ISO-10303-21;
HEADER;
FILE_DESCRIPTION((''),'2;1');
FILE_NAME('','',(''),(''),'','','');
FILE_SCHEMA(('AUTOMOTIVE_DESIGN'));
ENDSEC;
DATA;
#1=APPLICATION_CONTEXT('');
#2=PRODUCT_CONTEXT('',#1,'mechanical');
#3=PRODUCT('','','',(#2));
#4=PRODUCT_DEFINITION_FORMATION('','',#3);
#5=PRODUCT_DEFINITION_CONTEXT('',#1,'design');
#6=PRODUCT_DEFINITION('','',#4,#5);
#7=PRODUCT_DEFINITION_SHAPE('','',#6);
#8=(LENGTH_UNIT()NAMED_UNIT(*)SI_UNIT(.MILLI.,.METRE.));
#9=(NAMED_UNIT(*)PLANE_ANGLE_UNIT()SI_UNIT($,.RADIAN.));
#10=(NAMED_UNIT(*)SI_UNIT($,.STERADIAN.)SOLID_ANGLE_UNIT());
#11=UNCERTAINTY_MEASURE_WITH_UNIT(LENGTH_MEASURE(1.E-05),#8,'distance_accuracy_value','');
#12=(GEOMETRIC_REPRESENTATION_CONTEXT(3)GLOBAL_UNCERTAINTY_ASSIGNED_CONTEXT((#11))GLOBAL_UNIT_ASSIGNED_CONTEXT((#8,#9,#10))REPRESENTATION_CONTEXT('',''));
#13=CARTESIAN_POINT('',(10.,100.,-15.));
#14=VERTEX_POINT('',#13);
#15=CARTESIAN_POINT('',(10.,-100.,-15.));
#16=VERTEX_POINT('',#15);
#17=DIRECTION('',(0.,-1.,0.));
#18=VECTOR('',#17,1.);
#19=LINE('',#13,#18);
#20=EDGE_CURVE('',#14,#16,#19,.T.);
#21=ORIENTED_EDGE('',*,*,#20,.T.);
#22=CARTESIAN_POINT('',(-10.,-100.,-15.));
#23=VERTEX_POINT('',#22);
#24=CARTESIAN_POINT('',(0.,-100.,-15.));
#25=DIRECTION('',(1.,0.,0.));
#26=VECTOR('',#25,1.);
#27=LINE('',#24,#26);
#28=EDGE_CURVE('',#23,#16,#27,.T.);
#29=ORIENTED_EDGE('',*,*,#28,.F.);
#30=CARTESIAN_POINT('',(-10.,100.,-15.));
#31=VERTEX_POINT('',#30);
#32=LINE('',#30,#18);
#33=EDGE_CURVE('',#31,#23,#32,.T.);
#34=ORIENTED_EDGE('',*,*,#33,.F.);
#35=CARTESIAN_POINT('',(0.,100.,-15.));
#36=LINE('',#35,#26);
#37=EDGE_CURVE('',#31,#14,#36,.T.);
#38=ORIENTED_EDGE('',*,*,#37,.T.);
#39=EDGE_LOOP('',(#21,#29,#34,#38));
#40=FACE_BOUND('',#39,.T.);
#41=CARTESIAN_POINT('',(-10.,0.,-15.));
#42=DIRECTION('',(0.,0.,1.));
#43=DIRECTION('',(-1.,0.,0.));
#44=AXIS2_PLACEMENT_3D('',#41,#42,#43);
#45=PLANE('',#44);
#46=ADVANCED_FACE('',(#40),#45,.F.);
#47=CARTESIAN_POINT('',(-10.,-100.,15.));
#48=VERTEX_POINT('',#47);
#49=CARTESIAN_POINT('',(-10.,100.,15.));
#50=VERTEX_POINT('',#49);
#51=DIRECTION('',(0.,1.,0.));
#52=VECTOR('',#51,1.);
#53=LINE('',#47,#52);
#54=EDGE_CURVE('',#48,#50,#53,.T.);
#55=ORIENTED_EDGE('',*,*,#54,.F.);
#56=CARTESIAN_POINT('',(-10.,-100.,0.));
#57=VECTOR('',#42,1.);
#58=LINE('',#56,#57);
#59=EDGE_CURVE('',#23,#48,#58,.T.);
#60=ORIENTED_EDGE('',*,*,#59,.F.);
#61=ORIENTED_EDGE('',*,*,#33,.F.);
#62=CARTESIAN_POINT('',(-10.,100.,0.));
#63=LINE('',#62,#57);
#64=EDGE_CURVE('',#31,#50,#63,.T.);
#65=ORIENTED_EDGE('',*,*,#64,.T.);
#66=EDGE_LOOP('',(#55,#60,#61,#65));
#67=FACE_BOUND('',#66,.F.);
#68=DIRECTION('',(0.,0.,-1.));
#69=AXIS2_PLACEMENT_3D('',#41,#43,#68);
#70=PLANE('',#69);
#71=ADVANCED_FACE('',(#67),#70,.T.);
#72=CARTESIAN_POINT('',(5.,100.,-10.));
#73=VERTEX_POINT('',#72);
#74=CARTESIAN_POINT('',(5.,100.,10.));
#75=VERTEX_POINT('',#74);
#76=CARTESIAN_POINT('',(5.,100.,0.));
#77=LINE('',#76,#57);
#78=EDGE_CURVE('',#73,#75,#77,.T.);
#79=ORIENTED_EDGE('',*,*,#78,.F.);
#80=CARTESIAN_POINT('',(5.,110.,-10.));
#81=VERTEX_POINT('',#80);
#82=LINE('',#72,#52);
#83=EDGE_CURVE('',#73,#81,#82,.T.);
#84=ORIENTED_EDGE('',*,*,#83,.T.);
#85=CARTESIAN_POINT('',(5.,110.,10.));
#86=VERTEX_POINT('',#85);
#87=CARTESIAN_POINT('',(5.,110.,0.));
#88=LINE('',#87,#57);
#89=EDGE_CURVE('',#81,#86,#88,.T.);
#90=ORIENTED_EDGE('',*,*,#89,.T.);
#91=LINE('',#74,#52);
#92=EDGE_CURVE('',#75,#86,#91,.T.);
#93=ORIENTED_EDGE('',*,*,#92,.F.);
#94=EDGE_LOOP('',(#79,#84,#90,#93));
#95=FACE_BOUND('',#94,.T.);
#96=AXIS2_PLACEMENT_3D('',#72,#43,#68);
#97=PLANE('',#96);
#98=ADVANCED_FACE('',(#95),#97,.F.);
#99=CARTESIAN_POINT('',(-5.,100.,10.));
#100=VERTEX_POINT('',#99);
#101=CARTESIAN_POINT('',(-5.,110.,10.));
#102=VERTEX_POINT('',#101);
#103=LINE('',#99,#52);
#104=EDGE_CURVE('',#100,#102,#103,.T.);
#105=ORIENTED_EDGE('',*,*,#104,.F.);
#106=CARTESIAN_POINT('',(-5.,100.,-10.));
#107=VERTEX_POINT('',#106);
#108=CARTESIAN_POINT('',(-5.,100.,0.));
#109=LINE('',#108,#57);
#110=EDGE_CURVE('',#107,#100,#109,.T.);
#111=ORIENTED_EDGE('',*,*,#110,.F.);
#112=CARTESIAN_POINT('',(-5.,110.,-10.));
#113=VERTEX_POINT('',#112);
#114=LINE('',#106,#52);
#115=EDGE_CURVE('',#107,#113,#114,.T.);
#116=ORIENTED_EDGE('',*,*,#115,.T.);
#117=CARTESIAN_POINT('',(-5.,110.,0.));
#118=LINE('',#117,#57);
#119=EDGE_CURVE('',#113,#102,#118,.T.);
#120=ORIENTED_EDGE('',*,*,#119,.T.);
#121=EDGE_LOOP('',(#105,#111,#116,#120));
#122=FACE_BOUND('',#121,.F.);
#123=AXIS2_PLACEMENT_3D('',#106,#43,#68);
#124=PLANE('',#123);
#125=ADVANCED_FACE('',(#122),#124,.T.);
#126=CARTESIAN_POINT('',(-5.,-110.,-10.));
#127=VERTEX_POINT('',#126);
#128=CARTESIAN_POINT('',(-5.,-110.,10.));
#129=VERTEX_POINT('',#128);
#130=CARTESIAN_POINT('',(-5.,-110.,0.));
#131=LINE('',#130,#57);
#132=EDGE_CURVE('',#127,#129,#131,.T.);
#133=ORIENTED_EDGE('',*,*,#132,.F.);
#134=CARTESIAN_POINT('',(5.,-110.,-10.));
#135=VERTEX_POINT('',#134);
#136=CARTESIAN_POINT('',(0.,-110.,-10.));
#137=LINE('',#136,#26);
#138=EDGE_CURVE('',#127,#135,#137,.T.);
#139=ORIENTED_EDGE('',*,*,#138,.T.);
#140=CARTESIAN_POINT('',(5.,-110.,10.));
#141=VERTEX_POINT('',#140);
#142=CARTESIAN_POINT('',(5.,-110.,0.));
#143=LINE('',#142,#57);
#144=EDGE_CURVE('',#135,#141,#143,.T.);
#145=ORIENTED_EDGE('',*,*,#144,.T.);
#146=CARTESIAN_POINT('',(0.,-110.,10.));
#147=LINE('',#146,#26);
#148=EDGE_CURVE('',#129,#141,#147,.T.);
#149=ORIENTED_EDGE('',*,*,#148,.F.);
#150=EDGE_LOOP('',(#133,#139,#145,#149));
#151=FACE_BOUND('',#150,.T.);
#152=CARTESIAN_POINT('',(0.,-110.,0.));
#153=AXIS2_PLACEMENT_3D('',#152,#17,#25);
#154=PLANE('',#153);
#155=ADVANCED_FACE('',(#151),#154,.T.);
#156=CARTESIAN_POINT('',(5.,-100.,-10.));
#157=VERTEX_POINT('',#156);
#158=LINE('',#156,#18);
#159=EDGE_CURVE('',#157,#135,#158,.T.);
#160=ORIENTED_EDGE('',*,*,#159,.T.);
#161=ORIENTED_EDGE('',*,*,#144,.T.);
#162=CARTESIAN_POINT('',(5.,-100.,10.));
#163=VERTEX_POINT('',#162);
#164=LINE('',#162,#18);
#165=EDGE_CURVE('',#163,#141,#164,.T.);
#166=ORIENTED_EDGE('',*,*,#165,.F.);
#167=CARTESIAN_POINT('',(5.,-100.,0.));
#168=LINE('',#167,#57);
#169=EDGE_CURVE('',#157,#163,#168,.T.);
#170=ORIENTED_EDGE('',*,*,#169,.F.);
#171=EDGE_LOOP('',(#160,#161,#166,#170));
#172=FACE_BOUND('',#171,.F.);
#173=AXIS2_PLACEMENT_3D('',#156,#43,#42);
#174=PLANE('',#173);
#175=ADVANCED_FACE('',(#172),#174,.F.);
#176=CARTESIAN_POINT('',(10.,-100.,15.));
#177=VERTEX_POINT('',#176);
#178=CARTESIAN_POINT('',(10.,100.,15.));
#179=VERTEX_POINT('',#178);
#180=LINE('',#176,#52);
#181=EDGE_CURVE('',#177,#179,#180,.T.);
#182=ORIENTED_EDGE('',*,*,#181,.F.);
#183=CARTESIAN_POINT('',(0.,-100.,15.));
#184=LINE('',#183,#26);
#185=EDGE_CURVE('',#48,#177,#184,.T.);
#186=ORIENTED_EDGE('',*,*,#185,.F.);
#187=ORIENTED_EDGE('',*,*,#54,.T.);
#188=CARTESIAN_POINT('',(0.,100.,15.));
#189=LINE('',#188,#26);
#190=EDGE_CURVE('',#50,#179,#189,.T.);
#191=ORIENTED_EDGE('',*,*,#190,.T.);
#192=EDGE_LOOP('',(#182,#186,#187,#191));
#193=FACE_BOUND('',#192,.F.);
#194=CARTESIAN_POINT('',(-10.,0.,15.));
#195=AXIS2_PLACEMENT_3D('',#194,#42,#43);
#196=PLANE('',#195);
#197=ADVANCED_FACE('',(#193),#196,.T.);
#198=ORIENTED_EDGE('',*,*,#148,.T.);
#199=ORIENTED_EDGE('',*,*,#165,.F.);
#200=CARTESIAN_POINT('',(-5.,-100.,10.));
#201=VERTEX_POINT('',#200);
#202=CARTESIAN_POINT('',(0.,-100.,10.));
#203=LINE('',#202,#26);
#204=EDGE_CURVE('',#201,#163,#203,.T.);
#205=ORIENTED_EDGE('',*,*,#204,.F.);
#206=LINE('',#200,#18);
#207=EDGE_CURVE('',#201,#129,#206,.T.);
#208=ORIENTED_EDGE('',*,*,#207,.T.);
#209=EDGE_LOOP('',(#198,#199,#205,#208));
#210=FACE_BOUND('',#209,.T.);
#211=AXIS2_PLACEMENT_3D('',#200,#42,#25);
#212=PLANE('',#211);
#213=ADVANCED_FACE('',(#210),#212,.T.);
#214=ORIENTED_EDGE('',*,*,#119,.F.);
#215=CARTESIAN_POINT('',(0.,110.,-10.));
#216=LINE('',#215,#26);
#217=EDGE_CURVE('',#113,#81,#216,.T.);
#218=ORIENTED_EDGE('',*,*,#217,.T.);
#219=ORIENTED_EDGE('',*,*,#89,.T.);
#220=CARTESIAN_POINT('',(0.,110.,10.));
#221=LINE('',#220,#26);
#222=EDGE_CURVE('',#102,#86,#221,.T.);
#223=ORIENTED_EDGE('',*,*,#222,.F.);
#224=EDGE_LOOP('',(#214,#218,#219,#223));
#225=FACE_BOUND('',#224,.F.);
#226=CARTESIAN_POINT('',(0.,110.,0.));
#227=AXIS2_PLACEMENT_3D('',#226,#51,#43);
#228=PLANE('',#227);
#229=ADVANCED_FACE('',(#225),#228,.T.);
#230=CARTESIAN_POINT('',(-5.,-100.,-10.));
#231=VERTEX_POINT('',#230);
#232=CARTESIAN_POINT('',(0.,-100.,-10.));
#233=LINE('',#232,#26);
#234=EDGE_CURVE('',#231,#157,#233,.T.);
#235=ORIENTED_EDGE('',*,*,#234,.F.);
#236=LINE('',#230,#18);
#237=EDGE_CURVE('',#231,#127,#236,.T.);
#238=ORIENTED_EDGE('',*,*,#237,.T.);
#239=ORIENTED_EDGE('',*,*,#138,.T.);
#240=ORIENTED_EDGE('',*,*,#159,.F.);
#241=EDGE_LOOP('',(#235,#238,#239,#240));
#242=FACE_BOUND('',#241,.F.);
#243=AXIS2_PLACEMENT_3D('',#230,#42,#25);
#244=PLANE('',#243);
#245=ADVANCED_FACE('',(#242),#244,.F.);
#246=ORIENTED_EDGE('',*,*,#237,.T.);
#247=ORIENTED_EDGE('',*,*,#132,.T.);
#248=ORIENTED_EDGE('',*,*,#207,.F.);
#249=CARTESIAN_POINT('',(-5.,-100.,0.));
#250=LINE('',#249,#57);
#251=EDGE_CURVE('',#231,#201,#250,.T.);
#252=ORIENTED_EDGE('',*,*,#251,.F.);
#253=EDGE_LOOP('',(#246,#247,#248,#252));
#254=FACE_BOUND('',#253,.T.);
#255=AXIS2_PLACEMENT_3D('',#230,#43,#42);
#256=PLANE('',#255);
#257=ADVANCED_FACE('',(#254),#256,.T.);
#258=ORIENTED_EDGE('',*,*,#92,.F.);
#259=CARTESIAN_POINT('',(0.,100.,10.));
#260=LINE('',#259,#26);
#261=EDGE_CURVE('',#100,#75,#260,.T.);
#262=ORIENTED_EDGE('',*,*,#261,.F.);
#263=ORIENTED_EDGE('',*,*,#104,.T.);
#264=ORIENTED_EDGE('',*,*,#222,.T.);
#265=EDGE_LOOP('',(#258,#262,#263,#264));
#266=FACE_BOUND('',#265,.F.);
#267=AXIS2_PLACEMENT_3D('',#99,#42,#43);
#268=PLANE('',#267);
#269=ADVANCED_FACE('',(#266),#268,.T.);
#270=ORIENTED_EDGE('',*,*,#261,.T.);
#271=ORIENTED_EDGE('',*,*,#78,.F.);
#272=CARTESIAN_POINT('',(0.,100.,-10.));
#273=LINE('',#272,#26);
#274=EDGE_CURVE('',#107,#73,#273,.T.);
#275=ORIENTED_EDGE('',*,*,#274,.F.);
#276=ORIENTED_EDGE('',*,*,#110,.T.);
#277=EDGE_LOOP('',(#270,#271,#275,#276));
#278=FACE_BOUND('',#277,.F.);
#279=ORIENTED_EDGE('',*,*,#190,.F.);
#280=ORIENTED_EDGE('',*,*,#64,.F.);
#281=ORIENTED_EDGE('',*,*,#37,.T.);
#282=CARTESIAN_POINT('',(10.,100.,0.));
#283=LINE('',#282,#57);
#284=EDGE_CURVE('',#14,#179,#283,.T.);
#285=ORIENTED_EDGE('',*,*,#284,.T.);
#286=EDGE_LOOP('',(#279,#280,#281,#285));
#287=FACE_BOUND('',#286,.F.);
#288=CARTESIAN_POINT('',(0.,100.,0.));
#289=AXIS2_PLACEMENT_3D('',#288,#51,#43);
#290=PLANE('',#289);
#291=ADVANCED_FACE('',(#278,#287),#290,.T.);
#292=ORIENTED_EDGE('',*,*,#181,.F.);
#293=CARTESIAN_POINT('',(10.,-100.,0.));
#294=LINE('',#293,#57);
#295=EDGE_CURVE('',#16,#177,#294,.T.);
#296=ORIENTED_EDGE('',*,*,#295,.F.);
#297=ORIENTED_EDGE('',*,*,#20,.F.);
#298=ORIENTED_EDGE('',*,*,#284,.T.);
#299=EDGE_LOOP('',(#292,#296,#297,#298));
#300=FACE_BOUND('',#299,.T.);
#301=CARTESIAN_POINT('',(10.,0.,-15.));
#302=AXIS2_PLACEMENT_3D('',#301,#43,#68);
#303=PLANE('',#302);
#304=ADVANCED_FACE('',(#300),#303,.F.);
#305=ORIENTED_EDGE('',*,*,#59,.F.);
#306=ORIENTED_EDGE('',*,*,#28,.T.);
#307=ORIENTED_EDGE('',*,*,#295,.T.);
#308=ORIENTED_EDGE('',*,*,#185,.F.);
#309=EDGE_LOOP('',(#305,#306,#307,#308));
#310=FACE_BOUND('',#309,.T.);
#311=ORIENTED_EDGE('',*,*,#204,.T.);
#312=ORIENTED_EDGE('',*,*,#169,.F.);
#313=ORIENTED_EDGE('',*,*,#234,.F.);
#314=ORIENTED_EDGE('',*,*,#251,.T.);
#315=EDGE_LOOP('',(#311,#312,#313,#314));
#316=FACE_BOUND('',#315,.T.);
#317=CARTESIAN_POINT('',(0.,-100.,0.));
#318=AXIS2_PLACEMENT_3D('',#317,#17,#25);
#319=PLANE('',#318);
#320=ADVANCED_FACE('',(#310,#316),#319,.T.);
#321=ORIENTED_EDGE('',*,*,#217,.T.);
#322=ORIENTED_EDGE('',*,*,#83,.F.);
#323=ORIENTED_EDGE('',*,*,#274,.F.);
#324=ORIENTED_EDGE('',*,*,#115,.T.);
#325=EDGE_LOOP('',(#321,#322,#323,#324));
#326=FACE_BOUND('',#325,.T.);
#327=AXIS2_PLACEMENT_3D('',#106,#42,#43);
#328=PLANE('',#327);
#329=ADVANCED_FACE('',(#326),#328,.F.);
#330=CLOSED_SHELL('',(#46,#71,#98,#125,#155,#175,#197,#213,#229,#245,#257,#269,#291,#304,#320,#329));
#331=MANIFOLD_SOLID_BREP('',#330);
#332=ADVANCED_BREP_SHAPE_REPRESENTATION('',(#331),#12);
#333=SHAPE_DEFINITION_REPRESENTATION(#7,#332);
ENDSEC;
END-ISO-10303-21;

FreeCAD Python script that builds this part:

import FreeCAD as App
import Part
import Sketcher

V = App.Vector


def add_polygon(sketch, points):
    """Adds a closed chain of lines whose ends are joined by coincident constraints."""
    first, n = sketch.GeometryCount, len(points)
    for a, b in zip(points, points[1:] + points[:1]):
        sketch.addGeometry(Part.LineSegment(App.Vector(*a, 0), App.Vector(*b, 0)), False)
    for i in range(n):
        sketch.addConstraint(Sketcher.Constraint("Coincident", first + i, 2, first + (i + 1) % n, 1))

doc = App.newDocument("Part")
body = doc.addObject("PartDesign::Body", "Body")

sketch1 = body.newObject("Sketcher::SketchObject", "Sketch")
sketch1.AttachmentSupport = (doc.getObject("XZ_Plane"), [""])
sketch1.MapMode = "FlatFace"
add_polygon(sketch1, [(-10, 15), (-10, -15), (10, -15), (10, 15)])
sketch1.addConstraint(Sketcher.Constraint("Vertical", 0))
sketch1.addConstraint(Sketcher.Constraint("Horizontal", 1))
sketch1.addConstraint(Sketcher.Constraint("Vertical", 2))
sketch1.addConstraint(Sketcher.Constraint("Horizontal", 3))
sketch1.addConstraint(Sketcher.Constraint("Symmetric", 0, 2, 2, 2, -1, 1))
sketch1.addConstraint(Sketcher.Constraint("DistanceX", 1, 1, 1, 2, 20.0))
sketch1.addConstraint(Sketcher.Constraint("DistanceY", 0, 2, 0, 1, 30.0))
pad1 = body.newObject("PartDesign::Pad", "Pad")
pad1.Profile = sketch1
pad1.Length = 100

sketch2 = body.newObject("Sketcher::SketchObject", "Sketch001")
sketch2.AttachmentSupport = (doc.getObject("XZ_Plane"), [""])
sketch2.MapMode = "FlatFace"
sketch2.AttachmentOffset = App.Placement(V(0, 0, 100), App.Rotation())
add_polygon(sketch2, [(-5, 10), (-5, -10), (5, -10), (5, 10)])
sketch2.addConstraint(Sketcher.Constraint("Vertical", 0))
sketch2.addConstraint(Sketcher.Constraint("Horizontal", 1))
sketch2.addConstraint(Sketcher.Constraint("Vertical", 2))
sketch2.addConstraint(Sketcher.Constraint("Horizontal", 3))
sketch2.addConstraint(Sketcher.Constraint("Symmetric", 0, 2, 2, 2, -1, 1))
sketch2.addConstraint(Sketcher.Constraint("DistanceX", 1, 1, 1, 2, 10.0))
sketch2.addConstraint(Sketcher.Constraint("DistanceY", 0, 2, 0, 1, 20.0))
pad2 = body.newObject("PartDesign::Pad", "Pad001")
pad2.Profile = sketch2
pad2.Length = 10
body2 = doc.addObject("PartDesign::Body", "Body001")
doc.recompute()

body2.BaseFeature = body
doc.recompute()

mirroring = doc.addObject("Part::Mirroring", "Mirroring")
mirroring.Source = body
mirroring.Base = V(0, 0, 0)
mirroring.Normal = V(0, -1, 0)
body3 = doc.addObject("PartDesign::Body", "Body002")
body3.BaseFeature = mirroring
boolean = body2.newObject("PartDesign::Boolean", "Boolean")
boolean.Type = "Fuse"
boolean.addObjects([body3])
doc.recompute()
mirroring.Visibility = False

doc.recompute()
